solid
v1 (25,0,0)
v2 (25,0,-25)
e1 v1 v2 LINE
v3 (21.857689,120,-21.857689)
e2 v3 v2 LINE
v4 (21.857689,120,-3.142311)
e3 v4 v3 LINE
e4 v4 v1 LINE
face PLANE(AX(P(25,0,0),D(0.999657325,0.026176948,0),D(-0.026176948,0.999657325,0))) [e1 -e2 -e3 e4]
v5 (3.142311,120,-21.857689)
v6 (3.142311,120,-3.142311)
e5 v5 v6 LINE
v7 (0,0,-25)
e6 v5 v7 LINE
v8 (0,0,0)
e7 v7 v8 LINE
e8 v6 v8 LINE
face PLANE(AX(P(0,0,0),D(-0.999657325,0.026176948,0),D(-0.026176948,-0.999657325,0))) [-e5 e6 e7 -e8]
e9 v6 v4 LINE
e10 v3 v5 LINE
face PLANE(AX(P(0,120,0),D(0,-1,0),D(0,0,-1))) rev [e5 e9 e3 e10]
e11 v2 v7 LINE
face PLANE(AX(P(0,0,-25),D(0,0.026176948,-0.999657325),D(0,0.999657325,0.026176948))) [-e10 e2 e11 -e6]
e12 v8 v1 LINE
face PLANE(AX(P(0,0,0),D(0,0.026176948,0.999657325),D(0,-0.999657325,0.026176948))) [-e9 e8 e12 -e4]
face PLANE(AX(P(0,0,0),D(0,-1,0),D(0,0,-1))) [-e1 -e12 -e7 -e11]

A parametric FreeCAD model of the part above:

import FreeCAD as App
import Part
import Sketcher

V = App.Vector
Q = App.Units.Quantity

doc = App.newDocument("Part")
body = doc.addObject("PartDesign::Body", "Body")

# Sketch on XZ plane
sketch1 = body.newObject("Sketcher::SketchObject", "Sketch")
sketch1.AttachmentSupport = (doc.getObject("XZ_Plane"), [""])
sketch1.MapMode = "FlatFace"
sketch1.addGeometry([
    Part.LineSegment(V(0, -25, 0), V(0, 0, 0)),
    Part.LineSegment(V(0, 0, 0), V(25, 0, 0)),
    Part.LineSegment(V(25, 0, 0), V(25, -25, 0)),
    Part.LineSegment(V(25, -25, 0), V(0, -25, 0)),
], False)
sketch1.addConstraint([
    Sketcher.Constraint("Coincident", 0, 2, 1, 1),
    Sketcher.Constraint("Coincident", 1, 2, 2, 1),
    Sketcher.Constraint("Coincident", 2, 2, 3, 1),
    Sketcher.Constraint("Coincident", 3, 2, 0, 1),
    Sketcher.Constraint("Vertical", 0),
    Sketcher.Constraint("Horizontal", 1),
    Sketcher.Constraint("Vertical", 2),
    Sketcher.Constraint("Horizontal", 3),
    Sketcher.Constraint("Coincident", 0, 2, -1, 1),
    Sketcher.Constraint("Equal", 3, 0),
    Sketcher.Constraint("DistanceX", 1, 1, 1, 2, Q("25 mm")),
])
pad1 = body.newObject("PartDesign::Pad", "Pad")
pad1.Profile = sketch1
pad1.Length = 120
pad1.Reversed = True
pad1.TaperAngle = -1.5

doc.recompute()
